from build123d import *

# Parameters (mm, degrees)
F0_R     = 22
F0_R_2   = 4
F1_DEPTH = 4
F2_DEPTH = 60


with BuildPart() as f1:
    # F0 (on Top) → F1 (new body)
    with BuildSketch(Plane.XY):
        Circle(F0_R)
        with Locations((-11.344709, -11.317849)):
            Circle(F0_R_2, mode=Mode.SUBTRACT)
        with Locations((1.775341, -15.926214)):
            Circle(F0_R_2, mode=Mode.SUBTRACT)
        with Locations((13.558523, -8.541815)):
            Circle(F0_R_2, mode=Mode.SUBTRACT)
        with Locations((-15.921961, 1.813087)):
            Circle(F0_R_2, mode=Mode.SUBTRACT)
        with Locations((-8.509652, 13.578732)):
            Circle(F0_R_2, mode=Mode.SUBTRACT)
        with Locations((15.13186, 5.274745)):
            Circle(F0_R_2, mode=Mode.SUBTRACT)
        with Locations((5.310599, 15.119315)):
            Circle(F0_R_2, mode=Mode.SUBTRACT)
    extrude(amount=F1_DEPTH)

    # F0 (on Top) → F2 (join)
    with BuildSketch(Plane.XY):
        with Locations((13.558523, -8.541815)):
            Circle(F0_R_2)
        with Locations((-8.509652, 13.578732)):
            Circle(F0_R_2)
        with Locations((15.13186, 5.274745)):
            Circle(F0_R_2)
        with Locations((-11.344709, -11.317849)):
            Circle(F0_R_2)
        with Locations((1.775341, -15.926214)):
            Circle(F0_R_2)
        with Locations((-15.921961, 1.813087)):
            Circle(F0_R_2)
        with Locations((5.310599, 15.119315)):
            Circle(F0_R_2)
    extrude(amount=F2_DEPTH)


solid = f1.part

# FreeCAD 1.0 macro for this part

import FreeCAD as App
import Part
import Sketcher

V = App.Vector
Q = App.Units.Quantity

doc = App.newDocument("Part")
body = doc.addObject("PartDesign::Body", "Body")

# Sketch on XY plane
sketch1 = doc.addObject("Sketcher::SketchObject", "Sketch")
body.addObject(sketch1)
sketch1.AttachmentSupport = (doc.XY_Plane, [""])
sketch1.MapMode = "FlatFace"
sketch1.addGeometry(Part.Circle(V(0, 0, 0), V(0, 0, 1), 22), False)
sketch1.addGeometry(Part.Circle(V(-11.344709, -11.317849, 0), V(0, 0, 1), 4), False)
sketch1.addGeometry(Part.Circle(V(1.775341, -15.926214, 0), V(0, 0, 1), 4), False)
sketch1.addGeometry(Part.Circle(V(13.558523, -8.541815, 0), V(0, 0, 1), 4), False)
sketch1.addGeometry(Part.Circle(V(-15.921961, 1.813087, 0), V(0, 0, 1), 4), False)
sketch1.addGeometry(Part.Circle(V(-8.509652, 13.578732, 0), V(0, 0, 1), 4), False)
sketch1.addGeometry(Part.Circle(V(15.13186, 5.274745, 0), V(0, 0, 1), 4), False)
sketch1.addGeometry(Part.Circle(V(5.310599, 15.119315, 0), V(0, 0, 1), 4), False)
sketch1.addConstraint(Sketcher.Constraint("Coincident", 0, 3, -1, 1))
sketch1.addConstraint(Sketcher.Constraint("Equal", 1, 2))
sketch1.addConstraint(Sketcher.Constraint("Equal", 2, 3))
sketch1.addConstraint(Sketcher.Constraint("Equal", 3, 4))
sketch1.addConstraint(Sketcher.Constraint("Equal", 4, 5))
sketch1.addConstraint(Sketcher.Constraint("Equal", 5, 6))
sketch1.addConstraint(Sketcher.Constraint("Equal", 6, 7))
sketch1.addConstraint(Sketcher.Constraint("Diameter", 0, Q("44 mm")))
sketch1.addConstraint(Sketcher.Constraint("Diameter", 1, Q("8 mm")))
sketch1.addConstraint(Sketcher.Constraint("DistanceX", -1, 1, 7, 3, Q("5.310599 mm")))
sketch1.addConstraint(Sketcher.Constraint("DistanceY", 2, 3, 3, 3, Q("7.384399 mm")))
sketch1.addConstraint(Sketcher.Constraint("DistanceY", 2, 3, 4, 3, Q("17.739301 mm")))
sketch1.addConstraint(Sketcher.Constraint("DistanceX", 1, 3, -1, 1, Q("11.344709 mm")))
sketch1.addConstraint(Sketcher.Constraint("DistanceY", 1, 3, -1, 1, Q("11.317849 mm")))
sketch1.addConstraint(Sketcher.Constraint("DistanceX", -1, 1, 2, 3, Q("1.775341 mm")))
sketch1.addConstraint(Sketcher.Constraint("DistanceX", 4, 3, -1, 1, Q("15.921961 mm")))
sketch1.addConstraint(Sketcher.Constraint("DistanceX", -1, 1, 6, 3, Q("15.13186 mm")))
sketch1.addConstraint(Sketcher.Constraint("DistanceX", 1, 3, 3, 3, Q("24.903232 mm")))
sketch1.addConstraint(Sketcher.Constraint("DistanceX", 4, 3, 5, 3, Q("7.412309 mm")))
sketch1.addConstraint(Sketcher.Constraint("DistanceY", 1, 3, 5, 3, Q("24.896581 mm")))
sketch1.addConstraint(Sketcher.Constraint("DistanceY", 3, 3, 6, 3, Q("13.81656 mm")))
sketch1.addConstraint(Sketcher.Constraint("DistanceY", 6, 3, 7, 3, Q("9.84457 mm")))
sketch1.addConstraint(Sketcher.Constraint("DistanceY", 2, 3, -1, 1, Q("15.926214 mm")))
pad1 = doc.addObject("PartDesign::Pad", "Pad")
body.addObject(pad1)
pad1.Profile = sketch1
pad1.Length = 4

# Sketch on XY plane
sketch2 = doc.addObject("Sketcher::SketchObject", "Sketch001")
body.addObject(sketch2)
sketch2.AttachmentSupport = (doc.XY_Plane, [""])
sketch2.MapMode = "FlatFace"
sketch2.addGeometry(Part.Circle(V(13.558523, -8.541815, 0), V(0, 0, 1), 4), False)
sketch2.addGeometry(Part.Circle(V(-8.509652, 13.578732, 0), V(0, 0, 1), 4), False)
sketch2.addGeometry(Part.Circle(V(15.13186, 5.274745, 0), V(0, 0, 1), 4), False)
sketch2.addGeometry(Part.Circle(V(-11.344709, -11.317849, 0), V(0, 0, 1), 4), False)
sketch2.addGeometry(Part.Circle(V(1.775341, -15.926214, 0), V(0, 0, 1), 4), False)
sketch2.addGeometry(Part.Circle(V(-15.921961, 1.813087, 0), V(0, 0, 1), 4), False)
sketch2.addGeometry(Part.Circle(V(5.310599, 15.119315, 0), V(0, 0, 1), 4), False)
sketch2.addConstraint(Sketcher.Constraint("Equal", 0, 1))
sketch2.addConstraint(Sketcher.Constraint("Equal", 1, 2))
sketch2.addConstraint(Sketcher.Constraint("Equal", 2, 3))
sketch2.addConstraint(Sketcher.Constraint("Equal", 3, 4))
sketch2.addConstraint(Sketcher.Constraint("Equal", 4, 5))
sketch2.addConstraint(Sketcher.Constraint("Equal", 5, 6))
sketch2.addConstraint(Sketcher.Constraint("Diameter", 0, Q("8 mm")))
sketch2.addConstraint(Sketcher.Constraint("DistanceX", -1, 1, 6, 3, Q("5.310599 mm")))
sketch2.addConstraint(Sketcher.Constraint("DistanceY", 4, 3, 0, 3, Q("7.384399 mm")))
sketch2.addConstraint(Sketcher.Constraint("DistanceY", 4, 3, 5, 3, Q("17.739301 mm")))
sketch2.addConstraint(Sketcher.Constraint("DistanceX", -1, 1, 2, 3, Q("15.13186 mm")))
sketch2.addConstraint(Sketcher.Constraint("DistanceX", 3, 3, -1, 1, Q("11.344709 mm")))
sketch2.addConstraint(Sketcher.Constraint("DistanceY", 3, 3, -1, 1, Q("11.317849 mm")))
sketch2.addConstraint(Sketcher.Constraint("DistanceX", -1, 1, 4, 3, Q("1.775341 mm")))
sketch2.addConstraint(Sketcher.Constraint("DistanceX", 5, 3, -1, 1, Q("15.921961 mm")))
sketch2.addConstraint(Sketcher.Constraint("DistanceY", 0, 3, 2, 3, Q("13.81656 mm")))
sketch2.addConstraint(Sketcher.Constraint("DistanceX", 1, 3, 2, 3, Q("23.641512 mm")))
sketch2.addConstraint(Sketcher.Constraint("DistanceY", 3, 3, 1, 3, Q("24.896581 mm")))
sketch2.addConstraint(Sketcher.Constraint("DistanceX", 3, 3, 0, 3, Q("24.903232 mm")))
sketch2.addConstraint(Sketcher.Constraint("DistanceY", 2, 3, 6, 3, Q("9.84457 mm")))
sketch2.addConstraint(Sketcher.Constraint("DistanceY", 0, 3, -1, 1, Q("8.541815 mm")))
pad2 = doc.addObject("PartDesign::Pad", "Pad001")
body.addObject(pad2)
pad2.Profile = sketch2
pad2.Length = 60

doc.recompute()
